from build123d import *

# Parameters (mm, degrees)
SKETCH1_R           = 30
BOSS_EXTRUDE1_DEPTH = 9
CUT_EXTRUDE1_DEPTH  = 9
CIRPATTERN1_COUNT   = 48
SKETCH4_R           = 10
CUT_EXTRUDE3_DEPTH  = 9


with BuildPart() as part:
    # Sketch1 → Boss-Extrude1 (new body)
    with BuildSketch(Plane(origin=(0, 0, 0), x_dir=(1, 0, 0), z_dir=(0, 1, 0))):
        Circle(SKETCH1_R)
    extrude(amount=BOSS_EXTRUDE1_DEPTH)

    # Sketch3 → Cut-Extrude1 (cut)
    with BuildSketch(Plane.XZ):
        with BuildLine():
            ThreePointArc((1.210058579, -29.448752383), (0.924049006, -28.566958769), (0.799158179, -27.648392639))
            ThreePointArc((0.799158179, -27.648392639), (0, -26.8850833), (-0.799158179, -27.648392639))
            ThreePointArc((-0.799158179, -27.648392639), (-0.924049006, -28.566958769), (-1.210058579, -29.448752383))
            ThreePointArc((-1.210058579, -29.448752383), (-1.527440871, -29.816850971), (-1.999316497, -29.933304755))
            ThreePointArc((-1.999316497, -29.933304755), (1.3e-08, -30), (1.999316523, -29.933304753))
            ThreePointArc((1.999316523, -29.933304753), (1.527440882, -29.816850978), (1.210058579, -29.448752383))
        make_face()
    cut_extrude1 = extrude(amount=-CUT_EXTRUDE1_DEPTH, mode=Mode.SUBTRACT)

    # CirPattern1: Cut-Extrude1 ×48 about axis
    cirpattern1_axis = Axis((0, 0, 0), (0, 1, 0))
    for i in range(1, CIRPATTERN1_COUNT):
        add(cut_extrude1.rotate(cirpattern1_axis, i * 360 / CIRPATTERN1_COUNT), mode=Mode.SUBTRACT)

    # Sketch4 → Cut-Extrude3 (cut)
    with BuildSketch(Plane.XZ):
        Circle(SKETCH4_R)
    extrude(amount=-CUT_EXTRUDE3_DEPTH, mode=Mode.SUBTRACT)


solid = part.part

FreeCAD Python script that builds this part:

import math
import FreeCAD as App
import Part
import Sketcher
from FreeCAD import Vector

doc = App.newDocument("Part")
body = doc.addObject("PartDesign::Body", "Body")

sketch1 = body.newObject("Sketcher::SketchObject", "Sketch")
sketch1.AttachmentSupport = (doc.getObject("XZ_Plane"), [""])
sketch1.MapMode = "FlatFace"
sketch1.addGeometry(Part.Circle(Vector(0, 0, 0), Vector(0, 0, 1), 30), False)
sketch1.addConstraint([
    Sketcher.Constraint("Coincident", 0, 3, -1, 1),
    Sketcher.Constraint("Diameter", 0, 60.0),
])
pad1 = body.newObject("PartDesign::Pad", "Pad")
pad1.Profile = sketch1
pad1.Length = 9
pad1.Reversed = True

sketch2 = body.newObject("Sketcher::SketchObject", "Sketch001")
sketch2.AttachmentSupport = (doc.getObject("XZ_Plane"), [""])
sketch2.MapMode = "FlatFace"
sketch2.addGeometry([
    Part.ArcOfCircle(Part.Circle(Vector(6, -27.4, 0), Vector(0, 0, 1), 5.2), math.radians(-177), math.radians(-157)),
    Part.ArcOfCircle(Part.Circle(Vector(0, -27.7, 0), Vector(0, 0, 1), 0.8), math.radians(3), math.radians(177)),
    Part.ArcOfCircle(Part.Circle(Vector(-6, -27.4, 0), Vector(0, 0, 1), 5.2), math.radians(-23), math.radians(-3)),
    Part.ArcOfCircle(Part.Circle(Vector(-1.9, -29.1, 0), Vector(0, 0, 1), 0.8), math.radians(-94), math.radians(-23)),
    Part.ArcOfCircle(Part.Circle(Vector(0, 0, 0), Vector(0, 0, 1), 30), math.radians(-93.82), math.radians(-86.18)),
    Part.ArcOfCircle(Part.Circle(Vector(1.9, -29.1, 0), Vector(0, 0, 1), 0.8), math.radians(-157), math.radians(-86)),
], False)
sketch2.addConstraint([
    Sketcher.Constraint("Tangent", 0, 1, 1, 1),
    Sketcher.Constraint("Tangent", 1, 2, 2, 2),
    Sketcher.Constraint("Tangent", 2, 1, 3, 2),
    Sketcher.Constraint("Tangent", 3, 1, 4, 1),
    Sketcher.Constraint("Tangent", 4, 2, 5, 2),
    Sketcher.Constraint("Tangent", 5, 1, 0, 2),
    Sketcher.Constraint("Coincident", 4, 3, -1, 1),
    Sketcher.Constraint("Equal", 0, 2),
    Sketcher.Constraint("Equal", 1, 3),
    Sketcher.Constraint("Equal", 3, 5),
    Sketcher.Constraint("Symmetric", 0, 3, 2, 3, -2),
    Sketcher.Constraint("Radius", 4, 30.0),
    Sketcher.Constraint("Radius", 0, 5.2),
    Sketcher.Constraint("Radius", 1, 0.8),
    Sketcher.Constraint("DistanceY", 3, 3, 1, 3, 1.45),
    Sketcher.Constraint("DistanceX", 3, 3, -1, 1, 1.946001),
])
pocket1 = body.newObject("PartDesign::Pocket", "Pocket")
pocket1.Profile = sketch2
pocket1.Length = 9
doc.recompute()

polarpattern = body.newObject("PartDesign::PolarPattern", "PolarPattern")
polarpattern.Originals = [pocket1]
polarpattern.Axis = (doc.getObject("Y_Axis"), [""])
polarpattern.Angle = 360
polarpattern.Occurrences = 48
body.Tip = polarpattern

sketch3 = body.newObject("Sketcher::SketchObject", "Sketch002")
sketch3.AttachmentSupport = (doc.getObject("XZ_Plane"), [""])
sketch3.MapMode = "FlatFace"
sketch3.addGeometry(Part.Circle(Vector(0, 0, 0), Vector(0, 0, 1), 10), False)
sketch3.addConstraint([
    Sketcher.Constraint("Coincident", 0, 3, -1, 1),
    Sketcher.Constraint("Diameter", 0, 20.0),
])
pocket2 = body.newObject("PartDesign::Pocket", "Pocket001")
pocket2.Profile = sketch3
pocket2.Length = 9

doc.recompute()
